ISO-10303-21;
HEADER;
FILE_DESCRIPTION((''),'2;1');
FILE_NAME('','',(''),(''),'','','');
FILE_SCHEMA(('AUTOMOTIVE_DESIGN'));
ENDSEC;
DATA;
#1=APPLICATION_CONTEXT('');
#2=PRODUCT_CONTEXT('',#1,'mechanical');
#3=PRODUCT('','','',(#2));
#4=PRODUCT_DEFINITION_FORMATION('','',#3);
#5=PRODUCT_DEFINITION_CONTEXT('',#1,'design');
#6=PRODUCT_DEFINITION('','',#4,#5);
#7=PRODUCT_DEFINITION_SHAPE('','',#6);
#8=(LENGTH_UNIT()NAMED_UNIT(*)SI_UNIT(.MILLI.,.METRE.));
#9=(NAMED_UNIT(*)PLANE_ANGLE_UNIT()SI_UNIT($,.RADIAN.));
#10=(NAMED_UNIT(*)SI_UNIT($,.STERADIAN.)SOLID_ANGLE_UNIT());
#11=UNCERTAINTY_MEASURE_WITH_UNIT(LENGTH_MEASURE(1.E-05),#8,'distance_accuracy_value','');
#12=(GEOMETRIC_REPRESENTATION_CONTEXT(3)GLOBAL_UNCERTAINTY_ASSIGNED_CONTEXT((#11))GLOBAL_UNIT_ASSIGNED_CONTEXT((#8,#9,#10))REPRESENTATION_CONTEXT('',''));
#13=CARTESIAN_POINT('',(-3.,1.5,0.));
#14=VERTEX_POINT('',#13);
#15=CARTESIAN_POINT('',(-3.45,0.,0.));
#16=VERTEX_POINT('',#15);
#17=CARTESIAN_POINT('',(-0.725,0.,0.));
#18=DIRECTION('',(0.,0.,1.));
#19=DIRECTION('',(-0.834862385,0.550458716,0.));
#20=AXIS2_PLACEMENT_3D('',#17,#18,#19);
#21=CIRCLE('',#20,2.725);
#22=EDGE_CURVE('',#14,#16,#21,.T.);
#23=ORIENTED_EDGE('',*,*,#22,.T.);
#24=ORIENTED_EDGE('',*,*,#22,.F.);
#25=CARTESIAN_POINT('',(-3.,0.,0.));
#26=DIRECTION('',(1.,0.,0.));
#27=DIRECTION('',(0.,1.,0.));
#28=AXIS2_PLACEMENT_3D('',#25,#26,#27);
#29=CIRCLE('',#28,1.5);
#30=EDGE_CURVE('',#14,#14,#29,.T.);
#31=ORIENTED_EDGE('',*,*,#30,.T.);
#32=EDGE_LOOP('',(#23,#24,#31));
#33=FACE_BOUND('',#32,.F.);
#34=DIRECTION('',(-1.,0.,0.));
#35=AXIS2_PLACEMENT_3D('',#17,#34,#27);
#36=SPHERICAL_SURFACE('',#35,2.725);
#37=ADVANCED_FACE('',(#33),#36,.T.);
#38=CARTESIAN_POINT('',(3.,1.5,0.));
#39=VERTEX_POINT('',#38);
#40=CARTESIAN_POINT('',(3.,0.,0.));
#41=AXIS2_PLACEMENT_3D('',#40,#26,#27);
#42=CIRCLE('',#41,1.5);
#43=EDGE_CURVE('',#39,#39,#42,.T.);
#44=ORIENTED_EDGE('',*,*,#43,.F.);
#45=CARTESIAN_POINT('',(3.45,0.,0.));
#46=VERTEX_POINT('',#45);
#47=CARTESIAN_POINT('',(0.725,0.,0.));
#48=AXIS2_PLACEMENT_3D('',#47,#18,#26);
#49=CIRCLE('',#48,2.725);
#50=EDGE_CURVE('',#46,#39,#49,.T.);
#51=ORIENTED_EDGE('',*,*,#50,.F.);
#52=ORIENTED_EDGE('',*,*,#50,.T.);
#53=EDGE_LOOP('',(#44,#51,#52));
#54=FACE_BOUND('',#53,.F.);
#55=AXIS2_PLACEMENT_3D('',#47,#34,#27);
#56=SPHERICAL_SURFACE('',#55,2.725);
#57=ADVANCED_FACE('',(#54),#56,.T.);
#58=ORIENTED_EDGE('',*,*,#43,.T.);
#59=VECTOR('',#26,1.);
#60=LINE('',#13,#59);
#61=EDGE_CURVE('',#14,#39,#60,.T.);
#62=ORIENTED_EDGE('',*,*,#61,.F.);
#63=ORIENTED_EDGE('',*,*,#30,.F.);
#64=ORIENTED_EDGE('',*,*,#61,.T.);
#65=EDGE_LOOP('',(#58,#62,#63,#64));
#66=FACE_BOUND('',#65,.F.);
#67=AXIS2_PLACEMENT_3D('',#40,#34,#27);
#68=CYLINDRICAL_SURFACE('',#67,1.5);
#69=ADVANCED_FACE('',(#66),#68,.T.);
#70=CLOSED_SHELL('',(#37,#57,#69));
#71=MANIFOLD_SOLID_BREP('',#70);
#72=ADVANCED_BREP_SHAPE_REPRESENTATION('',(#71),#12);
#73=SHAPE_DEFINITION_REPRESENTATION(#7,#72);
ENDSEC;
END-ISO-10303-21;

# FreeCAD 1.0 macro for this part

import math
import FreeCAD as App
import Part
import Sketcher

doc = App.newDocument("Part")
body = doc.addObject("PartDesign::Body", "Body")

# Sketch on XY plane
sketch1 = doc.addObject("Sketcher::SketchObject", "Sketch")
body.addObject(sketch1)
sketch1.AttachmentSupport = (doc.XY_Plane, [""])
sketch1.MapMode = "FlatFace"
sketch1.addGeometry(Part.ArcOfCircle(Part.Circle(App.Vector(0.7, 0, 0), App.Vector(0, 0, 1), 2.7), math.radians(0), math.radians(33)), False)
sketch1.addGeometry(Part.LineSegment(App.Vector(3, 1.5, 0), App.Vector(-3, 1.5, 0)), False)
sketch1.addGeometry(Part.ArcOfCircle(Part.Circle(App.Vector(-0.7, 0, 0), App.Vector(0, 0, 1), 2.7), math.radians(147), math.radians(180)), False)
sketch1.addGeometry(Part.LineSegment(App.Vector(-3.5, 0, 0), App.Vector(3.5, 0, 0)), False)
sketch1.addConstraint(Sketcher.Constraint("Coincident", 0, 2, 1, 1))
sketch1.addConstraint(Sketcher.Constraint("Coincident", 1, 2, 2, 1))
sketch1.addConstraint(Sketcher.Constraint("Coincident", 2, 2, 3, 1))
sketch1.addConstraint(Sketcher.Constraint("Coincident", 3, 2, 0, 1))
sketch1.addConstraint(Sketcher.Constraint("Horizontal", 1))
sketch1.addConstraint(Sketcher.Constraint("Horizontal", 3))
sketch1.addConstraint(Sketcher.Constraint("Equal", 0, 2))
sketch1.addConstraint(Sketcher.Constraint("Symmetric", 0, 3, 2, 3, -1, 1))
sketch1.addConstraint(Sketcher.Constraint("PointOnObject", 0, 3, -1))
sketch1.addConstraint(Sketcher.Constraint("PointOnObject", 2, 2, -1))
sketch1.addConstraint(Sketcher.Constraint("DistanceX", 1, 2, 1, 1, 6.0))
sketch1.addConstraint(Sketcher.Constraint("DistanceX", 2, 2, 1, 2, 0.45))
sketch1.addConstraint(Sketcher.Constraint("Radius", 0, 2.725))
revolution = doc.addObject("PartDesign::Revolution", "Revolution")
body.addObject(revolution)
revolution.Profile = sketch1
revolution.ReferenceAxis = (sketch1, ["H_Axis"])
revolution.Angle = 360

doc.recompute()
